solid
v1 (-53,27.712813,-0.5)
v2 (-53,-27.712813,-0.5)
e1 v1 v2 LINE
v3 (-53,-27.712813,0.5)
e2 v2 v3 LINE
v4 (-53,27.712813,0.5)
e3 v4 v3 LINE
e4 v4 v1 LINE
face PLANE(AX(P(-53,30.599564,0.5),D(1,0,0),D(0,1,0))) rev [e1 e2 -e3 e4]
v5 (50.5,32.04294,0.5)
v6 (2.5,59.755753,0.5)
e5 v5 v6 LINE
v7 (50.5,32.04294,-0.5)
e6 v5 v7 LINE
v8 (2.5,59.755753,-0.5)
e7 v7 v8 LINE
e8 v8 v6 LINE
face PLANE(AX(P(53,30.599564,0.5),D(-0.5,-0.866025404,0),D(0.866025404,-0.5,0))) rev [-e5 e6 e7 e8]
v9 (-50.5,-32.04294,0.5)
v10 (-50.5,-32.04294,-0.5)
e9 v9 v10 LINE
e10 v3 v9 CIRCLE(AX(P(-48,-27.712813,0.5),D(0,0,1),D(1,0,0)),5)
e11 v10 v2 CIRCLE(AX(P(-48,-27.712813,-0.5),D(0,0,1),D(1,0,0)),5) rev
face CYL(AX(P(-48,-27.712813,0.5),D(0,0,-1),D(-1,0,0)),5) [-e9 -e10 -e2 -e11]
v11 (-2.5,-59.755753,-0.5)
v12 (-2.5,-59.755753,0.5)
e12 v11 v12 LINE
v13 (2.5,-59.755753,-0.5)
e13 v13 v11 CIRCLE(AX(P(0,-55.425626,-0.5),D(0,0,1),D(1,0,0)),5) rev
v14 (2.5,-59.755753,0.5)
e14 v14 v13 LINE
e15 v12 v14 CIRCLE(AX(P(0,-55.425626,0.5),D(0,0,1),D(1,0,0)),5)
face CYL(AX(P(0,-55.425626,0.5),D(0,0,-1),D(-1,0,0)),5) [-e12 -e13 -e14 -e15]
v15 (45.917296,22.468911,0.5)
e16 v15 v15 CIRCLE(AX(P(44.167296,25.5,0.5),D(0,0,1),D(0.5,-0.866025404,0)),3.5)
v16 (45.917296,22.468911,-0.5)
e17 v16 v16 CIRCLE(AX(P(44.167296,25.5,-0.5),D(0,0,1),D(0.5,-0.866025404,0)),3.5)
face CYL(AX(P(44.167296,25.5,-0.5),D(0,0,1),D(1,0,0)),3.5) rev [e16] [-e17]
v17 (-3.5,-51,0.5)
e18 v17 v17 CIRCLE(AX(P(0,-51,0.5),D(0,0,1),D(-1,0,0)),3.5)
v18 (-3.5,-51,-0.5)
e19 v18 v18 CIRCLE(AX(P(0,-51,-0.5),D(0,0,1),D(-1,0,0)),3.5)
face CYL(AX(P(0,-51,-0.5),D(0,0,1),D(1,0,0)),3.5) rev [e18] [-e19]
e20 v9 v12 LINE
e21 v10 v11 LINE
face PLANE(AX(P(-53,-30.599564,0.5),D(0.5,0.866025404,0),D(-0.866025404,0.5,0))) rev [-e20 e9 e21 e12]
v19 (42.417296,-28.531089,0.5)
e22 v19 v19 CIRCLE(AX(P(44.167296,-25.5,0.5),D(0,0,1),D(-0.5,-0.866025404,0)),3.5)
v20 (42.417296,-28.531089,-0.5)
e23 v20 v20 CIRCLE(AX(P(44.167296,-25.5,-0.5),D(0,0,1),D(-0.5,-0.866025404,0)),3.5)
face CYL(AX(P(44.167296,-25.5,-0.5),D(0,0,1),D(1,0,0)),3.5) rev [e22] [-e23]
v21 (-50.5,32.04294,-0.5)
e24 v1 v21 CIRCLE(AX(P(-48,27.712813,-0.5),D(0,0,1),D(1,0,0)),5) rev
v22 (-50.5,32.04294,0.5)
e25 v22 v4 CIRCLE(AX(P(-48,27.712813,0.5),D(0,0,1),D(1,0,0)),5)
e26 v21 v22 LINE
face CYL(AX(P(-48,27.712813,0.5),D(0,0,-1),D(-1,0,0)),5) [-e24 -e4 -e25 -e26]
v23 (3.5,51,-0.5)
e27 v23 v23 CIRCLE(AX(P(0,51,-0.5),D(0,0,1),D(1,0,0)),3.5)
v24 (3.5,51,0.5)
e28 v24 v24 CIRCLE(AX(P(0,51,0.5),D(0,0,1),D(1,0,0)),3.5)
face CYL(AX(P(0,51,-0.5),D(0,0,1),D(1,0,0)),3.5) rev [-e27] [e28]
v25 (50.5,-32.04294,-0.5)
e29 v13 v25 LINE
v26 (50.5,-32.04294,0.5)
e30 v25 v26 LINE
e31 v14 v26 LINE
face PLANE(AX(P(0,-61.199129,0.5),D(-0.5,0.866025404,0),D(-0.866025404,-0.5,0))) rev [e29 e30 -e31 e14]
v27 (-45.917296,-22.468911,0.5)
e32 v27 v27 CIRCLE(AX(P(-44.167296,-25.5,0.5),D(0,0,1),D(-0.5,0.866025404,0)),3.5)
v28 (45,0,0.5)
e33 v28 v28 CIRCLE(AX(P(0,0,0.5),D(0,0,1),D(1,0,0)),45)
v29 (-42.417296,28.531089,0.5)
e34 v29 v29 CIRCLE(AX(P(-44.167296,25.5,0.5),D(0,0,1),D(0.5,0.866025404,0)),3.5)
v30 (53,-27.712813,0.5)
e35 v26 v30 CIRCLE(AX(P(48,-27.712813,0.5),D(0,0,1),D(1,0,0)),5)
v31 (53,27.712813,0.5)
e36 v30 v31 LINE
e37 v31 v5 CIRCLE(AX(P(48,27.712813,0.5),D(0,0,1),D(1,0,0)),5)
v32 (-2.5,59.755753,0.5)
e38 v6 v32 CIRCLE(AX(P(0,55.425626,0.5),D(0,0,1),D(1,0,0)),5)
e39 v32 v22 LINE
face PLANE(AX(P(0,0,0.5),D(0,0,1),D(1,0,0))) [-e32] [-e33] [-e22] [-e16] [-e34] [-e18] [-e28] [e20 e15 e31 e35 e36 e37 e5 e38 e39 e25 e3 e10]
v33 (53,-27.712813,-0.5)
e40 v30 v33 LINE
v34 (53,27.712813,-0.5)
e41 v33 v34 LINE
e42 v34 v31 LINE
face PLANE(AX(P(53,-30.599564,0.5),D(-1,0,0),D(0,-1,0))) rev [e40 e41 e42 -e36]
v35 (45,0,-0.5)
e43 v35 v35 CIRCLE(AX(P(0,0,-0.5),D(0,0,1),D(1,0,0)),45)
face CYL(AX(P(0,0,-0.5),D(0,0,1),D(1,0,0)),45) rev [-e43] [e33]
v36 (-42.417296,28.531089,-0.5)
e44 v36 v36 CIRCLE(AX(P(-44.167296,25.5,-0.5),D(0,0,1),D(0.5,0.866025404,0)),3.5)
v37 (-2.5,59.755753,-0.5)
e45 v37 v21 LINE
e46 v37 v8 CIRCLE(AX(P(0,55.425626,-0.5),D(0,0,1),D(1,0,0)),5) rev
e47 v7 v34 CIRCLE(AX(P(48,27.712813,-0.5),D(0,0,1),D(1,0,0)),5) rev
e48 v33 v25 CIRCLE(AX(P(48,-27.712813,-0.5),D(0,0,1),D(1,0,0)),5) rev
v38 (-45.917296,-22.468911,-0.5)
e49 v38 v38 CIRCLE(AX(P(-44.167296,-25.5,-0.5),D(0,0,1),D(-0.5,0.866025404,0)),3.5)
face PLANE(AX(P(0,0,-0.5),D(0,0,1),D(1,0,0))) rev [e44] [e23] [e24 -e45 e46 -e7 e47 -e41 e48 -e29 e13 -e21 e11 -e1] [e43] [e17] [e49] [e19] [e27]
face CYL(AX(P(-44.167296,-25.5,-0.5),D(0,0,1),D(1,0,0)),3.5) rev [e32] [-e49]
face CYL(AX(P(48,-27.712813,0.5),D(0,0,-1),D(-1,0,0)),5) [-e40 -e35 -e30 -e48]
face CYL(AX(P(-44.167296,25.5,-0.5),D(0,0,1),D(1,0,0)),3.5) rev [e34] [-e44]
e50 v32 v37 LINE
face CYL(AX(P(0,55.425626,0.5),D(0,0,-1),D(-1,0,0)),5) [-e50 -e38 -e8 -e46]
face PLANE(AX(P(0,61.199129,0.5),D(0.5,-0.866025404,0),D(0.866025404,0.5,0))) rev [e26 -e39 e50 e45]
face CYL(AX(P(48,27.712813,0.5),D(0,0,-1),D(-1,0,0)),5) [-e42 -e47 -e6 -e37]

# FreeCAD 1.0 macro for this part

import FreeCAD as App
import Part
import Sketcher

V = App.Vector
Q = App.Units.Quantity


def edges_at(feature, points):
    """Names of the edges that pass closest to the given points."""
    edges = feature.Shape.Edges
    near = lambda p: min(range(len(edges)), key=lambda i: edges[i].distToShape(Part.Vertex(*p))[0])
    return sorted({f"Edge{near(p) + 1}" for p in points})


def add_polygon(sketch, points):
    """Adds a closed chain of lines whose ends are joined by coincident constraints."""
    first, n = sketch.GeometryCount, len(points)
    for a, b in zip(points, points[1:] + points[:1]):
        sketch.addGeometry(Part.LineSegment(App.Vector(*a, 0), App.Vector(*b, 0)), False)
    for i in range(n):
        sketch.addConstraint(Sketcher.Constraint("Coincident", first + i, 2, first + (i + 1) % n, 1))

doc = App.newDocument("Part")
body = doc.addObject("PartDesign::Body", "Body")

sketch1 = doc.addObject("Sketcher::SketchObject", "Sketch")
body.addObject(sketch1)
sketch1.AttachmentSupport = (doc.XY_Plane, [""])
sketch1.MapMode = "FlatFace"
add_polygon(sketch1, [(0, 61.199129), (-53, 30.599564), (-53, -30.599564), (0, -61.199129), (53, -30.599564), (53, 30.599564)])
sketch1.addConstraint(Sketcher.Constraint("Vertical", 1))
sketch1.addConstraint(Sketcher.Constraint("Vertical", 4))
sketch1.addConstraint(Sketcher.Constraint("Symmetric", 0, 2, 3, 2, -1, 1))
sketch1.addConstraint(Sketcher.Constraint("Symmetric", 2, 2, 5, 2, -1, 1))
sketch1.addConstraint(Sketcher.Constraint("PointOnObject", 2, 2, -2))
sketch1.addConstraint(Sketcher.Constraint("Parallel", 2, 5))
sketch1.addConstraint(Sketcher.Constraint("Horizontal", 1, 2, 3, 2))
sketch1.addConstraint(Sketcher.Constraint("Angle", 0, Q("-150 deg")))
sketch1.addConstraint(Sketcher.Constraint("DistanceX", 0, 2, -1, 1, Q("53 mm")))
sketch1.addConstraint(Sketcher.Constraint("DistanceY", 1, 2, 1, 1, Q("61.199129 mm")))
pad1 = doc.addObject("PartDesign::Pad", "Pad")
body.addObject(pad1)
pad1.Profile = sketch1
pad1.Length = 1
pad1.Midplane = True

sketch2 = doc.addObject("Sketcher::SketchObject", "Sketch001")
body.addObject(sketch2)
sketch2.AttachmentSupport = (doc.XY_Plane, [""])
sketch2.MapMode = "FlatFace"
sketch2.addGeometry(Part.Circle(V(0, 0, 0), V(0, 0, 1), 45), False)
sketch2.addConstraint(Sketcher.Constraint("Coincident", 0, 3, -1, 1))
sketch2.addConstraint(Sketcher.Constraint("Diameter", 0, Q("90 mm")))
pocket1 = doc.addObject("PartDesign::Pocket", "Pocket")
body.addObject(pocket1)
pocket1.Profile = sketch2
pocket1.Length = 1
pocket1.Midplane = True

sketch3 = doc.addObject("Sketcher::SketchObject", "Sketch002")
body.addObject(sketch3)
sketch3.AttachmentSupport = (doc.XY_Plane, [""])
sketch3.MapMode = "FlatFace"
sketch3.addGeometry(Part.Circle(V(0, 51, 0), V(0, 0, 1), 3.5), False)
sketch3.addConstraint(Sketcher.Constraint("PointOnObject", 0, 3, -2))
sketch3.addConstraint(Sketcher.Constraint("Diameter", 0, Q("7 mm")))
sketch3.addConstraint(Sketcher.Constraint("DistanceY", -1, 1, 0, 3, Q("51 mm")))
pocket2 = doc.addObject("PartDesign::Pocket", "Pocket001")
body.addObject(pocket2)
pocket2.Profile = sketch3
pocket2.Length = 1
pocket2.Midplane = True
doc.recompute()

polarpattern = doc.addObject("PartDesign::PolarPattern", "PolarPattern")
body.addObject(polarpattern)
polarpattern.Originals = [pocket2]
polarpattern.Axis = (doc.Z_Axis, [""])
polarpattern.Angle = 360
polarpattern.Occurrences = 6
body.Tip = polarpattern
doc.recompute()

fillet = doc.addObject("PartDesign::Fillet", "Fillet")
body.addObject(fillet)
fillet.Base = (polarpattern, edges_at(polarpattern, [
    (53, 30.6, 0),
    (53, -30.6, 0),
    (0, -61.199, 0),
    (-53, -30.6, 0),
    (-53, 30.6, 0),
    (0, 61.199, 0),
]))
fillet.Radius = 5

doc.recompute()
